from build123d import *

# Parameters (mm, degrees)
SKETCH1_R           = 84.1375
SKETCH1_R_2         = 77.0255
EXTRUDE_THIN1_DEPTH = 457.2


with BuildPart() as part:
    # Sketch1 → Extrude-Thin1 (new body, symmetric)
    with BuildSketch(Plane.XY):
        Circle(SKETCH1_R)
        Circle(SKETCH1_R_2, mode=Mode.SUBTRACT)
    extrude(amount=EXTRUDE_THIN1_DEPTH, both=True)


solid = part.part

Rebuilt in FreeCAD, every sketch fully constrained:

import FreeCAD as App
import Part
import Sketcher

V = App.Vector
Q = App.Units.Quantity

doc = App.newDocument("Part")
body = doc.addObject("PartDesign::Body", "Body")

# Sketch on XY plane
sketch1 = doc.addObject("Sketcher::SketchObject", "Sketch")
body.addObject(sketch1)
sketch1.AttachmentSupport = (doc.XY_Plane, [""])
sketch1.MapMode = "FlatFace"
sketch1.addGeometry(Part.Circle(V(0, 0, 0), V(0, 0, 1), 84), False)
sketch1.addGeometry(Part.Circle(V(0, 0, 0), V(0, 0, 1), 77), False)
sketch1.addConstraint(Sketcher.Constraint("Coincident", 0, 3, -1, 1))
sketch1.addConstraint(Sketcher.Constraint("Coincident", 1, 3, -1, 1))
sketch1.addConstraint(Sketcher.Constraint("Diameter", 0, Q("6.625 in")))
sketch1.addConstraint(Sketcher.Constraint("Diameter", 1, Q("6.065 in")))
pad1 = doc.addObject("PartDesign::Pad", "Pad")
body.addObject(pad1)
pad1.Profile = sketch1
pad1.Length = Q("36 in")
pad1.Midplane = True

doc.recompute()
